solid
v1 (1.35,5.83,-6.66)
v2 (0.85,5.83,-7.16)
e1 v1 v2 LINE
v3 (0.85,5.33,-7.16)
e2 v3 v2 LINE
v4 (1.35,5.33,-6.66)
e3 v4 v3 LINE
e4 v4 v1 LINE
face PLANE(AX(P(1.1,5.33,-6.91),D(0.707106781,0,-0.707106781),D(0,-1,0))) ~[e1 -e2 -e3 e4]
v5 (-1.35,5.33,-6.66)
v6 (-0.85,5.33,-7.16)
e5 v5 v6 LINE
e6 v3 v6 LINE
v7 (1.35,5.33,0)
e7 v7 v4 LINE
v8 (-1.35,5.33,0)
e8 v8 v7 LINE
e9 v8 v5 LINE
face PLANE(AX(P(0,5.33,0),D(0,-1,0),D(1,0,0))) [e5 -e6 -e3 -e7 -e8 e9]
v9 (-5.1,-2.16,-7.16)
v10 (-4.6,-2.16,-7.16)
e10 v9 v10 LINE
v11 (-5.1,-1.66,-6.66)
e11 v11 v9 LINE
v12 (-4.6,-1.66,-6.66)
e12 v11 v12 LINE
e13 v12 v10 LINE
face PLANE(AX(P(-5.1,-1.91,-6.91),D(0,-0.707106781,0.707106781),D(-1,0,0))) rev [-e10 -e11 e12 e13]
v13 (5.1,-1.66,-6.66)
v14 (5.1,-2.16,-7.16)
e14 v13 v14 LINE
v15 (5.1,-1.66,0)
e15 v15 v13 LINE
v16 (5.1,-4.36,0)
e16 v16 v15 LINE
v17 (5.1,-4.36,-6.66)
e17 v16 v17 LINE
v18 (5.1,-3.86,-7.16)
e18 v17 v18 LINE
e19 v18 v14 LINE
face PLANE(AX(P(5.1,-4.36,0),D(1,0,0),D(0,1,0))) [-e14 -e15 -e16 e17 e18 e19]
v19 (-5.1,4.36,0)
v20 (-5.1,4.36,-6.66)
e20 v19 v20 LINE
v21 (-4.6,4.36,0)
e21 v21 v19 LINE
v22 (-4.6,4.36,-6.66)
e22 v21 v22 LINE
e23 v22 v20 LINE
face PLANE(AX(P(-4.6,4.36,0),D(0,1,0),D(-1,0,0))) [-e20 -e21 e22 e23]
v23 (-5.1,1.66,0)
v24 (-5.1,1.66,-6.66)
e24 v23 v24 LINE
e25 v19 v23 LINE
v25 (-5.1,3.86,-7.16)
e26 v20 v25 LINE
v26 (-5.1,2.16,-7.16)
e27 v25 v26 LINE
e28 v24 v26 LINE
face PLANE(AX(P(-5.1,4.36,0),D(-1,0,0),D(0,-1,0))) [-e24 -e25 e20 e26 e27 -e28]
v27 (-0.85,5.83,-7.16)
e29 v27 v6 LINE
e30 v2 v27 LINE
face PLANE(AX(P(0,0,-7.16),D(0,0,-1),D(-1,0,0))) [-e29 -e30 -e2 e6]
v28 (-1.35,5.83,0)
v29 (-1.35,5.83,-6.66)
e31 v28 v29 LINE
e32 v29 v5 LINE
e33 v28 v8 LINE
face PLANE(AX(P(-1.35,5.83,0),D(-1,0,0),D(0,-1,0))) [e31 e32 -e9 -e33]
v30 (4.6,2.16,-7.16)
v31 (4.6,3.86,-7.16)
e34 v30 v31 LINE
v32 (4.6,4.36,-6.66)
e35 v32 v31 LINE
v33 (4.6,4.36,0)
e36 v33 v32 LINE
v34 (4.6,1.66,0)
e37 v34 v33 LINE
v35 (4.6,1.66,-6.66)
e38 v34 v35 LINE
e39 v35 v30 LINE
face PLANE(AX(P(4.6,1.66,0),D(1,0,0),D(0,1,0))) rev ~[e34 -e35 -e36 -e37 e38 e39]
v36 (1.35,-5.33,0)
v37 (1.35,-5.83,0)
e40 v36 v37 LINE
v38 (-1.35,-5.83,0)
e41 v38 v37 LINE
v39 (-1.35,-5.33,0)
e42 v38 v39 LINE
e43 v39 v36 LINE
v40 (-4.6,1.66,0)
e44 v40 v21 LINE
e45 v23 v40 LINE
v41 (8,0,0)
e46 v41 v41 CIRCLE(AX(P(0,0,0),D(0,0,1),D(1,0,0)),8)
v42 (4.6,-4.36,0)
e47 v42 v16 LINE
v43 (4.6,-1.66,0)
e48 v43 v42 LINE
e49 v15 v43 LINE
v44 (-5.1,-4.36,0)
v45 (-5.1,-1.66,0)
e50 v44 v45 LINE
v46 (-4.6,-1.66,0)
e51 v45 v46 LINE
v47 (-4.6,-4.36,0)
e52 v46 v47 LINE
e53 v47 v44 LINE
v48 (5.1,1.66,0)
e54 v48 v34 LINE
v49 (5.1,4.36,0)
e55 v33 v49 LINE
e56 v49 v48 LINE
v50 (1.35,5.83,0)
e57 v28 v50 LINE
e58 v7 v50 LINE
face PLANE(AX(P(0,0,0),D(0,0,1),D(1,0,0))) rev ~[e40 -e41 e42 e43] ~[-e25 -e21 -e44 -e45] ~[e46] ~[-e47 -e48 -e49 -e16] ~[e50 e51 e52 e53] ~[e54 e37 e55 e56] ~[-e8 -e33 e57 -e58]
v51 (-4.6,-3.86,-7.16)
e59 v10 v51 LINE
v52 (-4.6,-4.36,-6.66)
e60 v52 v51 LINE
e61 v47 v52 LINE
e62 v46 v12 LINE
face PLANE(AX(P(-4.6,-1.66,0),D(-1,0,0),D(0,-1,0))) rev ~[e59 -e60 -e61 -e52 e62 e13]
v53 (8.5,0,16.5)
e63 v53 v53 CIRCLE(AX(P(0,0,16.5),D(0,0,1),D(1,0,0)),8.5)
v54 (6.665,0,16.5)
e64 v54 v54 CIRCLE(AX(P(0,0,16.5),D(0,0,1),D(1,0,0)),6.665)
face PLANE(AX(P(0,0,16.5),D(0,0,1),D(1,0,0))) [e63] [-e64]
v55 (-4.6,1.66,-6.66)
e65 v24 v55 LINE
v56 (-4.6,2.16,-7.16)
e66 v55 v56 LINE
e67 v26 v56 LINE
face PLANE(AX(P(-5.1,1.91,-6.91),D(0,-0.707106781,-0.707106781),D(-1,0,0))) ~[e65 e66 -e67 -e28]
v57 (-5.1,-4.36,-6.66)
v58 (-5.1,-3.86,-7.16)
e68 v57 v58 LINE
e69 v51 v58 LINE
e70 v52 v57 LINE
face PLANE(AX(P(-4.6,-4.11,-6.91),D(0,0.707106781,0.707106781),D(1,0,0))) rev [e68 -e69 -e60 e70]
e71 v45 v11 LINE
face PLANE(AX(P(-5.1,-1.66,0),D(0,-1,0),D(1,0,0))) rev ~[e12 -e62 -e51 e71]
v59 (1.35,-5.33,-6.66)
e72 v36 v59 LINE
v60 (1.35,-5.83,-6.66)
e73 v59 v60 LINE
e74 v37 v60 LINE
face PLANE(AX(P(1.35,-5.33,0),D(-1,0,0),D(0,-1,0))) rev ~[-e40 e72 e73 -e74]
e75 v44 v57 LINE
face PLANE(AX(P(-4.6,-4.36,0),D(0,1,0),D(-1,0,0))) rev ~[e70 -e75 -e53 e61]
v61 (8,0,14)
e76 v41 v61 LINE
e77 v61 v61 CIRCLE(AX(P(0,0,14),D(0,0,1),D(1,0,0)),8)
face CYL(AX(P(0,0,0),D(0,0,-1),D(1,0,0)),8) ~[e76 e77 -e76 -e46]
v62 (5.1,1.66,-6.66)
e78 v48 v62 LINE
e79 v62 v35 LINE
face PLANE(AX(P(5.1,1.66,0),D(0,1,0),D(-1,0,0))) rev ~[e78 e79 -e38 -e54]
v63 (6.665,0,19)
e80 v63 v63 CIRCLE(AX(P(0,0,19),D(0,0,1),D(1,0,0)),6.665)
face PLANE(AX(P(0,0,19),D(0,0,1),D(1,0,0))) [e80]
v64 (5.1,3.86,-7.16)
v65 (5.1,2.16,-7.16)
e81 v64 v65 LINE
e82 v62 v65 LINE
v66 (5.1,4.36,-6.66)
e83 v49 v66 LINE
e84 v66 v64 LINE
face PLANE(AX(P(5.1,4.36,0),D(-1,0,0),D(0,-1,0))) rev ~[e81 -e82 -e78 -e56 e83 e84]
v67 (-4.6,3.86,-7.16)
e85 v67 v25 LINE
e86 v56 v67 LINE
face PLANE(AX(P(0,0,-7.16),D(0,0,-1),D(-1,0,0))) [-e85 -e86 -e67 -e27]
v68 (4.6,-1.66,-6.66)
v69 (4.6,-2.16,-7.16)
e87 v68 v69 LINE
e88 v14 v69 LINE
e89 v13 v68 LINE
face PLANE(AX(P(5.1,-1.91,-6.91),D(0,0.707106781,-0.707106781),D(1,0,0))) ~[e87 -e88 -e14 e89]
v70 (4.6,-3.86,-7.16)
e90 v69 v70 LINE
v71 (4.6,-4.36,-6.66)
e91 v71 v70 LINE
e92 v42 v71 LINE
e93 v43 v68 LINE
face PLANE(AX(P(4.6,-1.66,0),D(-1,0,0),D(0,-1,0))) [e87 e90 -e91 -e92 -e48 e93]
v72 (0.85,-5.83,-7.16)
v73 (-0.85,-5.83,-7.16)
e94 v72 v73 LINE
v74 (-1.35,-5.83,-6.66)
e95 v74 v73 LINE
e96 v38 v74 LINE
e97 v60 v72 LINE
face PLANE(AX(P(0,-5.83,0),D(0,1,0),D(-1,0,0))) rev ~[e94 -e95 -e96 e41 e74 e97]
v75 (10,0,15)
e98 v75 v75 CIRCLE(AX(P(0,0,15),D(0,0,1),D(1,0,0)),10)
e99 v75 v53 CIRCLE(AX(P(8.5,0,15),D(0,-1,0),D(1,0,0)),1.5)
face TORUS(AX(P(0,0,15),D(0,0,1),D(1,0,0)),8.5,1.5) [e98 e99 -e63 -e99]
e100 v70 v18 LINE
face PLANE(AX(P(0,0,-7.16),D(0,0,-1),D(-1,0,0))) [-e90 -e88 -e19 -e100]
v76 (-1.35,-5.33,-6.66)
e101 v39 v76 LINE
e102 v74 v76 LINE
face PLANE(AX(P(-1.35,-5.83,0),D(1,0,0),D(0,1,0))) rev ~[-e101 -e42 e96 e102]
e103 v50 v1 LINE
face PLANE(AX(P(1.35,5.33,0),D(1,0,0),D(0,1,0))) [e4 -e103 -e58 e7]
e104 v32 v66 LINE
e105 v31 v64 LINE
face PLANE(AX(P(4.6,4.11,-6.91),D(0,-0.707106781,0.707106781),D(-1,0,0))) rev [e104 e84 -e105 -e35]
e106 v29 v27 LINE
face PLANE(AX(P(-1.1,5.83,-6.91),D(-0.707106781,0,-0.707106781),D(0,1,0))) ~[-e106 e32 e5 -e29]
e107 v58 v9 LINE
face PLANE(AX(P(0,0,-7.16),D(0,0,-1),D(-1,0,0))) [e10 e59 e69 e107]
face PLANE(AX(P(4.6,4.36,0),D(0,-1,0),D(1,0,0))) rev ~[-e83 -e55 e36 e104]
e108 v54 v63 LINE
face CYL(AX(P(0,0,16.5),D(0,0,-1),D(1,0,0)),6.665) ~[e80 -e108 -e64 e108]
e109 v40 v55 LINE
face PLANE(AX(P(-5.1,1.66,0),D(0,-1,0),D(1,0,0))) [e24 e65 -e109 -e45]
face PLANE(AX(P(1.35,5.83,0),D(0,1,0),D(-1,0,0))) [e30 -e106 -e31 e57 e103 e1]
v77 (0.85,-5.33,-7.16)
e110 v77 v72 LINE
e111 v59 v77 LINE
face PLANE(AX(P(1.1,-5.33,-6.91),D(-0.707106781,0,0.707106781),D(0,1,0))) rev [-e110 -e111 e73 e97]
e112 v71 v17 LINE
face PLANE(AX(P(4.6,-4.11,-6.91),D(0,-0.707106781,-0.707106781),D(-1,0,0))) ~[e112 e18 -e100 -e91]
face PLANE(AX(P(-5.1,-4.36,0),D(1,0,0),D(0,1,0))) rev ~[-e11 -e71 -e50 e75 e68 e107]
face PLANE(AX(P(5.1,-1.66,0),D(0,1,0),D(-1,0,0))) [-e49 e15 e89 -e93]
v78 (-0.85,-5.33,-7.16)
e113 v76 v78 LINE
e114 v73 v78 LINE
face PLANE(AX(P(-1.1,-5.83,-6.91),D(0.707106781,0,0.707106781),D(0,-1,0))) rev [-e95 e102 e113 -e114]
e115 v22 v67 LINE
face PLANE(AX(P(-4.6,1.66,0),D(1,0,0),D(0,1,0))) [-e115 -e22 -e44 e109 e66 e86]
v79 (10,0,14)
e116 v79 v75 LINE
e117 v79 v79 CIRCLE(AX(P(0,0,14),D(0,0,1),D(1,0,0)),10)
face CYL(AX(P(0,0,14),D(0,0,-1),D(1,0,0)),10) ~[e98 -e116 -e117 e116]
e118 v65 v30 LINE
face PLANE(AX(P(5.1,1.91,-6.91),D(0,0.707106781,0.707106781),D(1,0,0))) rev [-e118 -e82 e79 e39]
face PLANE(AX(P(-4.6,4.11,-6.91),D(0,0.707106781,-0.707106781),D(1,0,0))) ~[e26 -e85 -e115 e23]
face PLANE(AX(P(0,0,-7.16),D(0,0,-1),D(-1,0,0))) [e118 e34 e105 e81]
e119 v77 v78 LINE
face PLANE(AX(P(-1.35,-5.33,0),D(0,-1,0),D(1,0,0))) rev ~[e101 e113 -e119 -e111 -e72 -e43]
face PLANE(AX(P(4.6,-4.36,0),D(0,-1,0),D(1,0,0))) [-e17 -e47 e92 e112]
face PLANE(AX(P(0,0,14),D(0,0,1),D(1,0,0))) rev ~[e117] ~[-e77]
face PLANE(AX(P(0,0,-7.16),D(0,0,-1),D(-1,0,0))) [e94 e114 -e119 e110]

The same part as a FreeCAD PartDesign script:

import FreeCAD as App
import Part
import Sketcher

V = App.Vector


def edges_at(feature, points):
    """Names of the edges that pass closest to the given points."""
    edges = feature.Shape.Edges
    near = lambda p: min(range(len(edges)), key=lambda i: edges[i].distToShape(Part.Vertex(*p))[0])
    return sorted({f"Edge{near(p) + 1}" for p in points})

doc = App.newDocument("Part")
body = doc.addObject("PartDesign::Body", "Body")

# Sketch on XY plane
sketch1 = body.newObject("Sketcher::SketchObject", "Sketch")
sketch1.AttachmentSupport = (doc.getObject("XY_Plane"), [""])
sketch1.MapMode = "FlatFace"
sketch1.addGeometry(Part.Circle(V(0, 0, 0), V(0, 0, 1), 8), False)
sketch1.addConstraint([
    Sketcher.Constraint("Coincident", 0, 3, -1, 1),
    Sketcher.Constraint("Diameter", 0, 16.0),
])
pad1 = body.newObject("PartDesign::Pad", "Pad")
pad1.Profile = sketch1
pad1.Length = 14

# Sketch on XY plane
sketch2 = body.newObject("Sketcher::SketchObject", "Sketch001")
sketch2.AttachmentSupport = (doc.getObject("XY_Plane"), [""])
sketch2.MapMode = "FlatFace"
sketch2.AttachmentOffset = App.Placement(V(0, 0, 14), App.Rotation())
sketch2.addGeometry(Part.Circle(V(0, 0, 0), V(0, 0, 1), 10), False)
sketch2.addConstraint([
    Sketcher.Constraint("Coincident", 0, 3, -1, 1),
    Sketcher.Constraint("Diameter", 0, 20.0),
])
pad2 = body.newObject("PartDesign::Pad", "Pad001")
pad2.Profile = sketch2
pad2.Length = 2.5
doc.recompute()

fillet = body.newObject("PartDesign::Fillet", "Fillet")
fillet.Base = (pad2, edges_at(pad2, [(-10, 0, 16.5)]))
fillet.Radius = 1.5

# Sketch on XY plane
sketch3 = body.newObject("Sketcher::SketchObject", "Sketch002")
sketch3.AttachmentSupport = (doc.getObject("XY_Plane"), [""])
sketch3.MapMode = "FlatFace"
sketch3.AttachmentOffset = App.Placement(V(0, 0, 16.5), App.Rotation())
sketch3.addGeometry(Part.Circle(V(0, 0, 0), V(0, 0, 1), 7), False)
sketch3.addConstraint([
    Sketcher.Constraint("Coincident", 0, 3, -1, 1),
    Sketcher.Constraint("Diameter", 0, 13.33),
])
pad3 = body.newObject("PartDesign::Pad", "Pad002")
pad3.Profile = sketch3
pad3.Length = 2.5

# Sketch on XY plane
sketch4 = body.newObject("Sketcher::SketchObject", "Sketch003")
sketch4.AttachmentSupport = (doc.getObject("XY_Plane"), [""])
sketch4.MapMode = "FlatFace"
sketch4.addGeometry([
    Part.LineSegment(V(-1.4, -5.3, 0), V(1.4, -5.3, 0)),  # 0
    Part.LineSegment(V(1.4, -5.3, 0), V(1.4, -5.8, 0)),  # 1
    Part.LineSegment(V(1.4, -5.8, 0), V(-1.4, -5.8, 0)),  # 2
    Part.LineSegment(V(-1.4, -5.8, 0), V(-1.4, -5.3, 0)),  # 3
    Part.LineSegment(V(1.4, 5.8, 0), V(1.4, 5.3, 0)),  # 4
    Part.LineSegment(V(1.4, 5.3, 0), V(-1.4, 5.3, 0)),  # 5
    Part.LineSegment(V(-1.4, 5.3, 0), V(-1.4, 5.8, 0)),  # 6
    Part.LineSegment(V(-1.4, 5.8, 0), V(1.4, 5.8, 0)),  # 7
    Part.LineSegment(V(-5.1, 4.4, 0), V(-4.6, 4.4, 0)),  # 8
    Part.LineSegment(V(-4.6, 4.4, 0), V(-4.6, 1.7, 0)),  # 9
    Part.LineSegment(V(-4.6, 1.7, 0), V(-5.1, 1.7, 0)),  # 10
    Part.LineSegment(V(-5.1, 1.7, 0), V(-5.1, 4.4, 0)),  # 11
    Part.LineSegment(V(-4.6, -1.7, 0), V(-4.6, -4.4, 0)),  # 12
    Part.LineSegment(V(-4.6, -4.4, 0), V(-5.1, -4.4, 0)),  # 13
    Part.LineSegment(V(-5.1, -4.4, 0), V(-5.1, -1.7, 0)),  # 14
    Part.LineSegment(V(-5.1, -1.7, 0), V(-4.6, -1.7, 0)),  # 15
    Part.LineSegment(V(4.6, 1.7, 0), V(4.6, 4.4, 0)),  # 16
    Part.LineSegment(V(4.6, 4.4, 0), V(5.1, 4.4, 0)),  # 17
    Part.LineSegment(V(5.1, 4.4, 0), V(5.1, 1.7, 0)),  # 18
    Part.LineSegment(V(5.1, 1.7, 0), V(4.6, 1.7, 0)),  # 19
    Part.LineSegment(V(4.6, -4.4, 0), V(4.6, -1.7, 0)),  # 20
    Part.LineSegment(V(4.6, -1.7, 0), V(5.1, -1.7, 0)),  # 21
    Part.LineSegment(V(5.1, -1.7, 0), V(5.1, -4.4, 0)),  # 22
    Part.LineSegment(V(5.1, -4.4, 0), V(4.6, -4.4, 0)),  # 23
], False)
sketch4.addConstraint([
    Sketcher.Constraint("Coincident", 0, 2, 1, 1),
    Sketcher.Constraint("Coincident", 1, 2, 2, 1),
    Sketcher.Constraint("Coincident", 2, 2, 3, 1),
    Sketcher.Constraint("Coincident", 3, 2, 0, 1),
    Sketcher.Constraint("Coincident", 4, 2, 5, 1),
    Sketcher.Constraint("Coincident", 5, 2, 6, 1),
    Sketcher.Constraint("Coincident", 6, 2, 7, 1),
    Sketcher.Constraint("Coincident", 7, 2, 4, 1),
    Sketcher.Constraint("Coincident", 8, 2, 9, 1),
    Sketcher.Constraint("Coincident", 9, 2, 10, 1),
    Sketcher.Constraint("Coincident", 10, 2, 11, 1),
    Sketcher.Constraint("Coincident", 11, 2, 8, 1),
    Sketcher.Constraint("Coincident", 12, 2, 13, 1),
    Sketcher.Constraint("Coincident", 13, 2, 14, 1),
    Sketcher.Constraint("Coincident", 14, 2, 15, 1),
    Sketcher.Constraint("Coincident", 15, 2, 12, 1),
    Sketcher.Constraint("Coincident", 16, 2, 17, 1),
    Sketcher.Constraint("Coincident", 17, 2, 18, 1),
    Sketcher.Constraint("Coincident", 18, 2, 19, 1),
    Sketcher.Constraint("Coincident", 19, 2, 16, 1),
    Sketcher.Constraint("Coincident", 20, 2, 21, 1),
    Sketcher.Constraint("Coincident", 21, 2, 22, 1),
    Sketcher.Constraint("Coincident", 22, 2, 23, 1),
    Sketcher.Constraint("Coincident", 23, 2, 20, 1),
    Sketcher.Constraint("Horizontal", 0),
    Sketcher.Constraint("Vertical", 1),
    Sketcher.Constraint("Horizontal", 2),
    Sketcher.Constraint("Vertical", 3),
    Sketcher.Constraint("Vertical", 4),
    Sketcher.Constraint("Horizontal", 5),
    Sketcher.Constraint("Vertical", 6),
    Sketcher.Constraint("Horizontal", 7),
    Sketcher.Constraint("Horizontal", 8),
    Sketcher.Constraint("Vertical", 9),
    Sketcher.Constraint("Horizontal", 10),
    Sketcher.Constraint("Vertical", 11),
    Sketcher.Constraint("Vertical", 12),
    Sketcher.Constraint("Horizontal", 13),
    Sketcher.Constraint("Vertical", 14),
    Sketcher.Constraint("Horizontal", 15),
    Sketcher.Constraint("Vertical", 16),
    Sketcher.Constraint("Horizontal", 17),
    Sketcher.Constraint("Vertical", 18),
    Sketcher.Constraint("Horizontal", 19),
    Sketcher.Constraint("Vertical", 20),
    Sketcher.Constraint("Horizontal", 21),
    Sketcher.Constraint("Vertical", 22),
    Sketcher.Constraint("Horizontal", 23),
    Sketcher.Constraint("Symmetric", 3, 2, 4, 2, -1, 1),
    Sketcher.Constraint("Symmetric", 1, 2, 6, 2, -1, 1),
    Sketcher.Constraint("Symmetric", 12, 2, 16, 2, -1, 1),
    Sketcher.Constraint("Symmetric", 14, 2, 18, 2, -1, 1),
    Sketcher.Constraint("Symmetric", 9, 2, 20, 2, -1, 1),
    Sketcher.Constraint("Symmetric", 11, 2, 22, 2, -1, 1),
    Sketcher.Constraint("Symmetric", 8, 2, 16, 2, -2),
    Sketcher.Constraint("Symmetric", 10, 2, 18, 2, -2),
    Sketcher.Constraint("Vertical", 1, 2, 4, 2),
    Sketcher.Constraint("Equal", 23, 1),
    Sketcher.Constraint("Equal", 7, 9),
    Sketcher.Constraint("DistanceX", 0, 1, 0, 2, 2.7),
    Sketcher.Constraint("DistanceX", 8, 1, 8, 2, 0.5),
    Sketcher.Constraint("DistanceX", 10, 2, -1, 1, 5.1),
    Sketcher.Constraint("DistanceY", 1, 2, -1, 1, 5.83),
    Sketcher.Constraint("DistanceY", -1, 1, 8, 2, 4.36),
])
pad4 = body.newObject("PartDesign::Pad", "Pad003")
pad4.Profile = sketch4
pad4.Length = 7.16
pad4.Reversed = True
doc.recompute()

chamfer = body.newObject("PartDesign::Chamfer", "Chamfer")
chamfer.Base = (pad4, edges_at(pad4, [
    (-4.85, -4.36, -7.16),
    (-4.85, -1.66, -7.16),
    (-4.85, 1.66, -7.16),
    (-4.85, 4.36, -7.16),
    (-1.35, 5.58, -7.16),
    (1.35, 5.58, -7.16),
    (4.85, 4.36, -7.16),
    (4.85, 1.66, -7.16),
    (4.85, -1.66, -7.16),
    (4.85, -4.36, -7.16),
    (1.35, -5.58, -7.16),
    (-1.35, -5.58, -7.16),
]))
chamfer.Size = 0.5

doc.recompute()
